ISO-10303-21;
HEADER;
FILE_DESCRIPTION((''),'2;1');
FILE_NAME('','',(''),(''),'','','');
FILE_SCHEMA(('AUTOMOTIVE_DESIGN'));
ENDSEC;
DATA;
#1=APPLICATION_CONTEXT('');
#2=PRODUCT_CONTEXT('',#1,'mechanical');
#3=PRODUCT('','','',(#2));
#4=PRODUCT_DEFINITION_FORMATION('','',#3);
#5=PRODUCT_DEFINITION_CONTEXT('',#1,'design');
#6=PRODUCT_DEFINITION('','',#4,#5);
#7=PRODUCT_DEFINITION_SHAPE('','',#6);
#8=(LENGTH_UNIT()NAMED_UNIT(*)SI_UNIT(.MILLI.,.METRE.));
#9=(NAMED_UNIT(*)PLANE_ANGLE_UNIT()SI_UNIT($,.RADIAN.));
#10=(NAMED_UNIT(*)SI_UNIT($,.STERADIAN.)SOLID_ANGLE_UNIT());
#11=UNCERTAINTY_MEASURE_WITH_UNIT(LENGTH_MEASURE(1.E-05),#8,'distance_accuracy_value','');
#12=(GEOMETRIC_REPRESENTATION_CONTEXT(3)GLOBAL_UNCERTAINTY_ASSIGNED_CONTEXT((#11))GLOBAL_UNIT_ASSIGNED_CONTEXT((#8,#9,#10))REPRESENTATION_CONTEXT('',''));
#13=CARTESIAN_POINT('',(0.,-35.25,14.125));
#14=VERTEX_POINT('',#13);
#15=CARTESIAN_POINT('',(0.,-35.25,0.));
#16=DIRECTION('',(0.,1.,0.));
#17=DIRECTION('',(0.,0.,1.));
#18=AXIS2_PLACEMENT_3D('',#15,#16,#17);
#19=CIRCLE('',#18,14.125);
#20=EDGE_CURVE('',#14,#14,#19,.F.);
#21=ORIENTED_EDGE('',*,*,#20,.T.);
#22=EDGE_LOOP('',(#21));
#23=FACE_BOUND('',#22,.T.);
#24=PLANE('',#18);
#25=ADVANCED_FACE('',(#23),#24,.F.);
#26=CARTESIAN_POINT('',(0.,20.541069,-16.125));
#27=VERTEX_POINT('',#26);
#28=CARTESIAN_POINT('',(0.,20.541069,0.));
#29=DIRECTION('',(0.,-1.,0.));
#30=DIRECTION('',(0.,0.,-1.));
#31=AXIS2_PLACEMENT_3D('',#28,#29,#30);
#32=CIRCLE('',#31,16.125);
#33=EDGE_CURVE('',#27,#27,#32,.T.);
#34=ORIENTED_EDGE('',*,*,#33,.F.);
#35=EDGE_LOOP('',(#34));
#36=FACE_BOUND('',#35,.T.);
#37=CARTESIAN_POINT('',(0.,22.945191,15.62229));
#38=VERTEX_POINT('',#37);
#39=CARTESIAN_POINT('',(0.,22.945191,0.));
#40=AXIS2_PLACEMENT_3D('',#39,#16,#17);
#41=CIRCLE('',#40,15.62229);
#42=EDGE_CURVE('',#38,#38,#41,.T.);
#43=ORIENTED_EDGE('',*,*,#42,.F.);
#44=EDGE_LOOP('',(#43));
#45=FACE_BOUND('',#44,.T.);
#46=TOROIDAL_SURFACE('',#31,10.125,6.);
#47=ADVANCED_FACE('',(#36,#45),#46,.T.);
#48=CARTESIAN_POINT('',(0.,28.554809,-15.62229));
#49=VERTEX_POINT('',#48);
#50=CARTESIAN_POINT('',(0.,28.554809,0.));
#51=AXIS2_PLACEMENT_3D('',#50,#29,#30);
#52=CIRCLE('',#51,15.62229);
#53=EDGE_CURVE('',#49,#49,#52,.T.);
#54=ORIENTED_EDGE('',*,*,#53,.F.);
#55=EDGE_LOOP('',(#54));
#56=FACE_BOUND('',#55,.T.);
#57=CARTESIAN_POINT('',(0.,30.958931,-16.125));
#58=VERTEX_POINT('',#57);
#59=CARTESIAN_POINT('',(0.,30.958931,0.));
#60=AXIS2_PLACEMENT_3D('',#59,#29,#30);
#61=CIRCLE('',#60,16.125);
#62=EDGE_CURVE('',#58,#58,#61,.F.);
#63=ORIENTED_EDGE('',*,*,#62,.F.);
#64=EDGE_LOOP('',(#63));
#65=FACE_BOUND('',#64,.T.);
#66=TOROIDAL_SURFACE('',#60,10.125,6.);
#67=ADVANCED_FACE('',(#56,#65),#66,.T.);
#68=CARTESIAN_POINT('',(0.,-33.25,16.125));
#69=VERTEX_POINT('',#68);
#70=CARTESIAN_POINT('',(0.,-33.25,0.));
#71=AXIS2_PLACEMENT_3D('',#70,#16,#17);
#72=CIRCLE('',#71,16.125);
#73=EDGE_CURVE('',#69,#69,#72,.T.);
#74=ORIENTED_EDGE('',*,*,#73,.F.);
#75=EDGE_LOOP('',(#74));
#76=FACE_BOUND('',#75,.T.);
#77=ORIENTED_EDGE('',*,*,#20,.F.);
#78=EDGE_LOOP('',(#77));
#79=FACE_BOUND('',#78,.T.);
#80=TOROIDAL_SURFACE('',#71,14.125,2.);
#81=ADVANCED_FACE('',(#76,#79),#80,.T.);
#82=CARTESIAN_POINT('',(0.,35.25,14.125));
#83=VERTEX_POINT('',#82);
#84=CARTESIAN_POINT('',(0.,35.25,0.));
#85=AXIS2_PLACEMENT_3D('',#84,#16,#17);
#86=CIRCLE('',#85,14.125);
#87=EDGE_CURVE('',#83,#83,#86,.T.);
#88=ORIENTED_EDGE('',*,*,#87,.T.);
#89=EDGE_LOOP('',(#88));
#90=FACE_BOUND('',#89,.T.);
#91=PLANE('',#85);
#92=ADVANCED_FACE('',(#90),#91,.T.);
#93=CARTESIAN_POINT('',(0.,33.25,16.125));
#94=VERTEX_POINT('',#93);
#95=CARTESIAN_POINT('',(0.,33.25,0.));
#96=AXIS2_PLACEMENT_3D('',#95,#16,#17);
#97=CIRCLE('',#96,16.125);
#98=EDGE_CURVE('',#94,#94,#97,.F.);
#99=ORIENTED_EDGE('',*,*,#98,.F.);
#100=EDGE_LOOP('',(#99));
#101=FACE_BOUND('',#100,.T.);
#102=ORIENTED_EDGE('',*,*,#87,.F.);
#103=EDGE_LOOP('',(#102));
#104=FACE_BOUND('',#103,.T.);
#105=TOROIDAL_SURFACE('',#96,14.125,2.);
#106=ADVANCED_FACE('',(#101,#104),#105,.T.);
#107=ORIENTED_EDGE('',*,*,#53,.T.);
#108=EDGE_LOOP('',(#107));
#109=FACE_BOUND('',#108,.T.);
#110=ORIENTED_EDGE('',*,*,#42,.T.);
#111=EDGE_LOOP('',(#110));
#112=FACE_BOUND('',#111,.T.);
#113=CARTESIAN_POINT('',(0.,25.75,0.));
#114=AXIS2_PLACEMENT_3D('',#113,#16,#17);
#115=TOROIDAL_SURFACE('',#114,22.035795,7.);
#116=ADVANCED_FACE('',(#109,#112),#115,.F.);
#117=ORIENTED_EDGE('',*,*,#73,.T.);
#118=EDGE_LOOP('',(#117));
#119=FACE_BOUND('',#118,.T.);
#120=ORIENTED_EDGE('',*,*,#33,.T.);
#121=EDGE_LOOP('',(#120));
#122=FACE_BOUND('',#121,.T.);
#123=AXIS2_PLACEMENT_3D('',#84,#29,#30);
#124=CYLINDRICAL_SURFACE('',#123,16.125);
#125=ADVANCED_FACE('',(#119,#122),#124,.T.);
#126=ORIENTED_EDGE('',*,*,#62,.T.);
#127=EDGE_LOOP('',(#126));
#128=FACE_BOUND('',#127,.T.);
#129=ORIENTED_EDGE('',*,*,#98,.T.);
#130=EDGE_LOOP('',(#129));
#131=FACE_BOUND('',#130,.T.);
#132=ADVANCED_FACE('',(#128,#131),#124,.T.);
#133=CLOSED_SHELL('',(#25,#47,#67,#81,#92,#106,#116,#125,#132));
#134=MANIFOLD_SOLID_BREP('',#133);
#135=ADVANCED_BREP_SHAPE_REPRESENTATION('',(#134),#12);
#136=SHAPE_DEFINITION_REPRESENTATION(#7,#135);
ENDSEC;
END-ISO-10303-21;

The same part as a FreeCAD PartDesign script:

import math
import FreeCAD as App
import Part
import Sketcher


def edges_at(feature, points):
    """Names of the edges that pass closest to the given points."""
    edges = feature.Shape.Edges
    near = lambda p: min(range(len(edges)), key=lambda i: edges[i].distToShape(Part.Vertex(*p))[0])
    return sorted({f"Edge{near(p) + 1}" for p in points})

doc = App.newDocument("Part")
body = doc.addObject("PartDesign::Body", "Body")

# Sketch on XZ plane
sketch1 = body.newObject("Sketcher::SketchObject", "Sketch")
sketch1.AttachmentSupport = (doc.getObject("XZ_Plane"), [""])
sketch1.MapMode = "FlatFace"
sketch1.addGeometry(Part.Circle(App.Vector(0, 0, 0), App.Vector(0, 0, 1), 16.125), False)
sketch1.addConstraint(Sketcher.Constraint("Coincident", 0, 3, -1, 1))
sketch1.addConstraint(Sketcher.Constraint("Diameter", 0, 32.25))
pad1 = body.newObject("PartDesign::Pad", "Pad")
pad1.Profile = sketch1
pad1.Length = 70.5
pad1.Midplane = True
doc.recompute()

fillet = body.newObject("PartDesign::Fillet", "Fillet")
fillet.Base = (pad1, edges_at(pad1, [(0, -35.25, -16.125), (0, 35.25, -16.125)]))
fillet.Radius = 2

# Sketch on XY plane
sketch2 = body.newObject("Sketcher::SketchObject", "Sketch001")
sketch2.AttachmentSupport = (doc.getObject("XY_Plane"), [""])
sketch2.MapMode = "FlatFace"
sketch2.addGeometry(Part.ArcOfCircle(Part.Circle(App.Vector(22.035795, 25.75, 0), App.Vector(0, 0, 1), 7), math.radians(147.607635), math.radians(212.392365)), False)
sketch2.addGeometry(Part.LineSegment(App.Vector(16.125, 22, 0), App.Vector(16.125, 29.5, 0)), False)
sketch2.addConstraint(Sketcher.Constraint("Coincident", 0, 1, 1, 2))
sketch2.addConstraint(Sketcher.Constraint("Coincident", 1, 1, 0, 2))
sketch2.addConstraint(Sketcher.Constraint("Vertical", 1))
sketch2.addConstraint(Sketcher.Constraint("Radius", 0, 7.0))
sketch2.addConstraint(Sketcher.Constraint("DistanceY", 1, 1, 1, 2, 7.5))
sketch2.addConstraint(Sketcher.Constraint("DistanceY", -1, 1, 1, 1, 22.0))
sketch2.addConstraint(Sketcher.Constraint("DistanceX", -1, 1, 0, 1, 16.125))
groove = body.newObject("PartDesign::Groove", "Groove")
groove.Profile = sketch2
groove.ReferenceAxis = (sketch2, ["V_Axis"])
groove.Angle = 360
doc.recompute()

fillet2 = body.newObject("PartDesign::Fillet", "Fillet001")
fillet2.Base = (groove, edges_at(groove, [(0, 29.5, -16.125), (0, 22, -16.125)]))
fillet2.Radius = 6

doc.recompute()
